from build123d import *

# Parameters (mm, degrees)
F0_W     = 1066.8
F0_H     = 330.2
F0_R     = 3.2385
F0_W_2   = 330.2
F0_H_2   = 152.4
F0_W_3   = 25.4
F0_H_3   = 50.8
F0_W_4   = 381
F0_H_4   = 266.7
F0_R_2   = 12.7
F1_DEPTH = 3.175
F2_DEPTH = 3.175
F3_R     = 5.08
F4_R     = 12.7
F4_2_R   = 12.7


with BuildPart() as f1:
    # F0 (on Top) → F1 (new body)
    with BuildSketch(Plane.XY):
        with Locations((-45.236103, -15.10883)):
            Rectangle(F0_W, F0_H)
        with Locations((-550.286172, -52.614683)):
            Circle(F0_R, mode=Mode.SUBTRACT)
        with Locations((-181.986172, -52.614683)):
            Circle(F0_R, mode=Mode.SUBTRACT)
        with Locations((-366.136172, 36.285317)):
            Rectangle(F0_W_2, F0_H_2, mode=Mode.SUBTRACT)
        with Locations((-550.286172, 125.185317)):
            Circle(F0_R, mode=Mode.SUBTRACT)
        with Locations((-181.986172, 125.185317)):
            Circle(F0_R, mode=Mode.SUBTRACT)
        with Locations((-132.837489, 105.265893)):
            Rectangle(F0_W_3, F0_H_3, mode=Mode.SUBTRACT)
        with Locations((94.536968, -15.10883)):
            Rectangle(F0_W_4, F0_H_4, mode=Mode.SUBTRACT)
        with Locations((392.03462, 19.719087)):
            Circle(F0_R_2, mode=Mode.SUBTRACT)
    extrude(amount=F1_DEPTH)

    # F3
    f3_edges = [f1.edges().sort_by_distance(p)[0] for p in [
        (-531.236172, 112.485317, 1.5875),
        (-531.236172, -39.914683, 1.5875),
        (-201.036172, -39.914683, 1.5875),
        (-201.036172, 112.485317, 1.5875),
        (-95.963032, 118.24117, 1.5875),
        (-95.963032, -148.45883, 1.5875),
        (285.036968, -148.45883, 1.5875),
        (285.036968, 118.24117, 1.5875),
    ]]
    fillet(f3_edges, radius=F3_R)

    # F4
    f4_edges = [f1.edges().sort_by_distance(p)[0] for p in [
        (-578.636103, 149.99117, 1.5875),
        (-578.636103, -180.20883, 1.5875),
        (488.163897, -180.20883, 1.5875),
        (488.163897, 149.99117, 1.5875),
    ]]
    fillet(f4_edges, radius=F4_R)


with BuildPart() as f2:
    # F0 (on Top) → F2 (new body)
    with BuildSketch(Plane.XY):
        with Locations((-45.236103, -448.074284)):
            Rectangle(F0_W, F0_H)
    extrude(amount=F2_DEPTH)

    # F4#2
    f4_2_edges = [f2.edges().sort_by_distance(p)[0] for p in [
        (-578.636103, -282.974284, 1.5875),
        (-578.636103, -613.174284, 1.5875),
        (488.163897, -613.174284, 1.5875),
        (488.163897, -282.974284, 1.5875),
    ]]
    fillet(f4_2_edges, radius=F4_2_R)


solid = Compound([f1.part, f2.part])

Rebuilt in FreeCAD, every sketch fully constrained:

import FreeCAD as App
import Part
import Sketcher
Q = App.Units.Quantity


def edges_at(feature, points):
    """Names of the edges that pass closest to the given points."""
    edges = feature.Shape.Edges
    near = lambda p: min(range(len(edges)), key=lambda i: edges[i].distToShape(Part.Vertex(*p))[0])
    return sorted({f"Edge{near(p) + 1}" for p in points})

doc = App.newDocument("Part")
params = doc.addObject("Spreadsheet::Sheet", "Params")
for row, (alias, value) in enumerate([
    ("sketch1_diameter", "1 in"),
    ("sketch1_width", "42 in"),
    ("sketch1_width2", "15 in"),
    ("sketch1_width3", "13 in"),
    ("sketch1_width4", "1 in"),
    ("pad1_length", "0.125 in"),
    ("fillet_radius", "0.2 in"),
    ("fillet2_radius", "0.5 in"),
    ("sketch2_width", "42 in"),
    ("sketch2_height", "13 in"),
    ("pad2_length", "0.125 in"),
    ("fillet3_radius", "0.5 in"),
], start=1):
    params.set(f"A{row}", alias)
    params.set(f"B{row}", "=" + value)
    params.setAlias(f"B{row}", alias)

body = doc.addObject("PartDesign::Body", "Body")

# Sketch on XY plane
sketch1 = body.newObject("Sketcher::SketchObject", "Sketch")
sketch1.AttachmentSupport = (doc.getObject("XY_Plane"), [""])
sketch1.MapMode = "FlatFace"
sketch1.addGeometry(Part.LineSegment(App.Vector(-578.6, 150, 0), App.Vector(-578.6, -180.2, 0)), False)
sketch1.addGeometry(Part.LineSegment(App.Vector(-578.6, -180.2, 0), App.Vector(488.2, -180.2, 0)), False)
sketch1.addGeometry(Part.LineSegment(App.Vector(488.2, -180.2, 0), App.Vector(488.2, 150, 0)), False)
sketch1.addGeometry(Part.LineSegment(App.Vector(488.2, 150, 0), App.Vector(-578.6, 150, 0)), False)
sketch1.addGeometry(Part.Circle(App.Vector(-550.3, -52.6, 0), App.Vector(0, 0, 1), 3.2), False)
sketch1.addGeometry(Part.Circle(App.Vector(-182, -52.6, 0), App.Vector(0, 0, 1), 3.2), False)
sketch1.addGeometry(Part.LineSegment(App.Vector(285, -148.5, 0), App.Vector(-96, -148.5, 0)), False)
sketch1.addGeometry(Part.LineSegment(App.Vector(-96, -148.5, 0), App.Vector(-96, 118.2, 0)), False)
sketch1.addGeometry(Part.LineSegment(App.Vector(-96, 118.2, 0), App.Vector(285, 118.2, 0)), False)
sketch1.addGeometry(Part.LineSegment(App.Vector(285, 118.2, 0), App.Vector(285, -148.5, 0)), False)
sketch1.addGeometry(Part.LineSegment(App.Vector(-201, -39.9, 0), App.Vector(-531.2, -39.9, 0)), False)
sketch1.addGeometry(Part.LineSegment(App.Vector(-531.2, -39.9, 0), App.Vector(-531.2, 112.5, 0)), False)
sketch1.addGeometry(Part.LineSegment(App.Vector(-531.2, 112.5, 0), App.Vector(-201, 112.5, 0)), False)
sketch1.addGeometry(Part.LineSegment(App.Vector(-201, 112.5, 0), App.Vector(-201, -39.9, 0)), False)
sketch1.addGeometry(Part.Circle(App.Vector(-550.3, 125.2, 0), App.Vector(0, 0, 1), 3.2), False)
sketch1.addGeometry(Part.LineSegment(App.Vector(-120.1, 79.9, 0), App.Vector(-145.5, 79.9, 0)), False)
sketch1.addGeometry(Part.LineSegment(App.Vector(-145.5, 79.9, 0), App.Vector(-145.5, 130.7, 0)), False)
sketch1.addGeometry(Part.LineSegment(App.Vector(-145.5, 130.7, 0), App.Vector(-120.1, 130.7, 0)), False)
sketch1.addGeometry(Part.LineSegment(App.Vector(-120.1, 130.7, 0), App.Vector(-120.1, 79.9, 0)), False)
sketch1.addGeometry(Part.Circle(App.Vector(-182, 125.2, 0), App.Vector(0, 0, 1), 3.2), False)
sketch1.addGeometry(Part.Circle(App.Vector(392, 19.7, 0), App.Vector(0, 0, 1), 12.7), False)
sketch1.addConstraint(Sketcher.Constraint("Coincident", 0, 2, 1, 1))
sketch1.addConstraint(Sketcher.Constraint("Coincident", 1, 2, 2, 1))
sketch1.addConstraint(Sketcher.Constraint("Coincident", 2, 2, 3, 1))
sketch1.addConstraint(Sketcher.Constraint("Coincident", 3, 2, 0, 1))
sketch1.addConstraint(Sketcher.Constraint("Coincident", 6, 2, 7, 1))
sketch1.addConstraint(Sketcher.Constraint("Coincident", 7, 2, 8, 1))
sketch1.addConstraint(Sketcher.Constraint("Coincident", 8, 2, 9, 1))
sketch1.addConstraint(Sketcher.Constraint("Coincident", 9, 2, 6, 1))
sketch1.addConstraint(Sketcher.Constraint("Coincident", 10, 2, 11, 1))
sketch1.addConstraint(Sketcher.Constraint("Coincident", 11, 2, 12, 1))
sketch1.addConstraint(Sketcher.Constraint("Coincident", 12, 2, 13, 1))
sketch1.addConstraint(Sketcher.Constraint("Coincident", 13, 2, 10, 1))
sketch1.addConstraint(Sketcher.Constraint("Coincident", 15, 2, 16, 1))
sketch1.addConstraint(Sketcher.Constraint("Coincident", 16, 2, 17, 1))
sketch1.addConstraint(Sketcher.Constraint("Coincident", 17, 2, 18, 1))
sketch1.addConstraint(Sketcher.Constraint("Coincident", 18, 2, 15, 1))
sketch1.addConstraint(Sketcher.Constraint("Vertical", 0))
sketch1.addConstraint(Sketcher.Constraint("Horizontal", 1))
sketch1.addConstraint(Sketcher.Constraint("Vertical", 2))
sketch1.addConstraint(Sketcher.Constraint("Horizontal", 3))
sketch1.addConstraint(Sketcher.Constraint("Horizontal", 6))
sketch1.addConstraint(Sketcher.Constraint("Vertical", 7))
sketch1.addConstraint(Sketcher.Constraint("Horizontal", 8))
sketch1.addConstraint(Sketcher.Constraint("Vertical", 9))
sketch1.addConstraint(Sketcher.Constraint("Horizontal", 10))
sketch1.addConstraint(Sketcher.Constraint("Vertical", 11))
sketch1.addConstraint(Sketcher.Constraint("Horizontal", 12))
sketch1.addConstraint(Sketcher.Constraint("Vertical", 13))
sketch1.addConstraint(Sketcher.Constraint("Horizontal", 15))
sketch1.addConstraint(Sketcher.Constraint("Vertical", 16))
sketch1.addConstraint(Sketcher.Constraint("Horizontal", 17))
sketch1.addConstraint(Sketcher.Constraint("Vertical", 18))
sketch1.addConstraint(Sketcher.Constraint("Equal", 4, 5))
sketch1.addConstraint(Sketcher.Constraint("Equal", 5, 14))
sketch1.addConstraint(Sketcher.Constraint("Equal", 14, 19))
sketch1.addConstraint(Sketcher.Constraint("Horizontal", 4, 3, 5, 3))
sketch1.addConstraint(Sketcher.Constraint("Horizontal", 14, 3, 19, 3))
sketch1.addConstraint(Sketcher.Constraint("Vertical", 4, 3, 14, 3))
sketch1.addConstraint(Sketcher.Constraint("Vertical", 5, 3, 19, 3))
sketch1.addConstraint(Sketcher.Constraint("Equal", 12, 0))
sketch1.addConstraint(Sketcher.Constraint("Diameter", 20, Q("1 in")))
sketch1.addConstraint(Sketcher.Constraint("DistanceX", 1, 1, 1, 2, Q("42 in")))
sketch1.addConstraint(Sketcher.Constraint("DistanceX", 6, 2, 6, 1, Q("15 in")))
sketch1.addConstraint(Sketcher.Constraint("DistanceX", 10, 2, 10, 1, Q("13 in")))
sketch1.addConstraint(Sketcher.Constraint("DistanceX", 15, 2, 15, 1, Q("1 in")))
sketch1.addConstraint(Sketcher.Constraint("DistanceY", 11, 1, 11, 2, Q("6 in")))
sketch1.addConstraint(Sketcher.Constraint("DistanceY", 16, 1, 16, 2, Q("2 in")))
sketch1.addConstraint(Sketcher.Constraint("Diameter", 4, Q("0.255 in")))
sketch1.addConstraint(Sketcher.Constraint("DistanceY", 7, 1, 7, 2, Q("10.5 in")))
sketch1.addConstraint(Sketcher.Constraint("DistanceY", 4, 3, 14, 3, Q("7 in")))
sketch1.addConstraint(Sketcher.Constraint("DistanceX", 4, 3, 5, 3, Q("14.5 in")))
sketch1.addConstraint(Sketcher.Constraint("DistanceY", 4, 3, 10, 2, Q("0.5 in")))
sketch1.addConstraint(Sketcher.Constraint("DistanceY", 0, 2, 6, 2, Q("1.25 in")))
sketch1.addConstraint(Sketcher.Constraint("DistanceX", 4, 3, 10, 2, Q("0.75 in")))
sketch1.addConstraint(Sketcher.Constraint("DistanceX", 4, 3, -1, 1, 550.286172))
sketch1.addConstraint(Sketcher.Constraint("DistanceX", -1, 1, 20, 3, 392.03462))
sketch1.addConstraint(Sketcher.Constraint("DistanceY", 0, 2, -1, 1, 180.20883))
sketch1.addConstraint(Sketcher.Constraint("DistanceX", 6, 2, -1, 1, 95.963032))
sketch1.addConstraint(Sketcher.Constraint("DistanceX", 15, 2, -1, 1, 145.537489))
sketch1.addConstraint(Sketcher.Constraint("DistanceY", 5, 3, 20, 3, 72.33377))
sketch1.addConstraint(Sketcher.Constraint("DistanceX", 0, 2, 4, 3, 28.349931))
sketch1.addConstraint(Sketcher.Constraint("DistanceY", 4, 3, -1, 1, 52.614683))
sketch1.addConstraint(Sketcher.Constraint("DistanceY", -1, 1, 15, 2, 79.865893))
sketch1.setExpression("Constraints[40]", "Params.sketch1_diameter")
sketch1.setExpression("Constraints[41]", "Params.sketch1_width")
sketch1.setExpression("Constraints[42]", "Params.sketch1_width2")
sketch1.setExpression("Constraints[43]", "Params.sketch1_width3")
sketch1.setExpression("Constraints[44]", "Params.sketch1_width4")
pad1 = body.newObject("PartDesign::Pad", "Pad")
pad1.Profile = sketch1
pad1.setExpression("Length", "Params.pad1_length")
doc.recompute()

fillet = body.newObject("PartDesign::Fillet", "Fillet")
fillet.Base = (pad1, edges_at(pad1, [
    (-531.236, 112.485, 1.587),
    (-531.236, -39.915, 1.587),
    (-201.036, -39.915, 1.587),
    (-201.036, 112.485, 1.587),
    (-95.963, 118.241, 1.587),
    (-95.963, -148.459, 1.587),
    (285.037, -148.459, 1.587),
    (285.037, 118.241, 1.587),
]))
fillet.setExpression("Radius", "Params.fillet_radius")
doc.recompute()

fillet2 = body.newObject("PartDesign::Fillet", "Fillet001")
fillet2.Base = (fillet, edges_at(fillet, [
    (-578.636, 149.991, 1.587),
    (-578.636, -180.209, 1.587),
    (488.164, -180.209, 1.587),
    (488.164, 149.991, 1.587),
]))
fillet2.setExpression("Radius", "Params.fillet2_radius")
body2 = doc.addObject("PartDesign::Body", "Body001")

# Sketch on XY plane
sketch2 = body2.newObject("Sketcher::SketchObject", "Sketch001")
sketch2.AttachmentSupport = (doc.getObject("XY_Plane001"), [""])
sketch2.MapMode = "FlatFace"
sketch2.addGeometry(Part.LineSegment(App.Vector(-579, -283, 0), App.Vector(-579, -613, 0)), False)
sketch2.addGeometry(Part.LineSegment(App.Vector(-579, -613, 0), App.Vector(488, -613, 0)), False)
sketch2.addGeometry(Part.LineSegment(App.Vector(488, -613, 0), App.Vector(488, -283, 0)), False)
sketch2.addGeometry(Part.LineSegment(App.Vector(488, -283, 0), App.Vector(-579, -283, 0)), False)
sketch2.addConstraint(Sketcher.Constraint("Coincident", 0, 2, 1, 1))
sketch2.addConstraint(Sketcher.Constraint("Coincident", 1, 2, 2, 1))
sketch2.addConstraint(Sketcher.Constraint("Coincident", 2, 2, 3, 1))
sketch2.addConstraint(Sketcher.Constraint("Coincident", 3, 2, 0, 1))
sketch2.addConstraint(Sketcher.Constraint("Vertical", 0))
sketch2.addConstraint(Sketcher.Constraint("Horizontal", 1))
sketch2.addConstraint(Sketcher.Constraint("Vertical", 2))
sketch2.addConstraint(Sketcher.Constraint("Horizontal", 3))
sketch2.addConstraint(Sketcher.Constraint("DistanceX", 1, 1, 1, 2, Q("42 in")))
sketch2.addConstraint(Sketcher.Constraint("DistanceY", 0, 2, 0, 1, Q("13 in")))
sketch2.addConstraint(Sketcher.Constraint("DistanceX", 0, 2, -1, 1, 578.636103))
sketch2.addConstraint(Sketcher.Constraint("DistanceY", 0, 2, -1, 1, 613.174284))
sketch2.setExpression("Constraints[8]", "Params.sketch2_width")
sketch2.setExpression("Constraints[9]", "Params.sketch2_height")
pad2 = body2.newObject("PartDesign::Pad", "Pad001")
pad2.Profile = sketch2
pad2.setExpression("Length", "Params.pad2_length")
doc.recompute()

fillet3 = body2.newObject("PartDesign::Fillet", "Fillet002")
fillet3.Base = (pad2, edges_at(pad2, [
    (-578.636, -282.974, 1.587),
    (-578.636, -613.174, 1.587),
    (488.164, -613.174, 1.587),
    (488.164, -282.974, 1.587),
]))
fillet3.setExpression("Radius", "Params.fillet3_radius")

doc.recompute()
